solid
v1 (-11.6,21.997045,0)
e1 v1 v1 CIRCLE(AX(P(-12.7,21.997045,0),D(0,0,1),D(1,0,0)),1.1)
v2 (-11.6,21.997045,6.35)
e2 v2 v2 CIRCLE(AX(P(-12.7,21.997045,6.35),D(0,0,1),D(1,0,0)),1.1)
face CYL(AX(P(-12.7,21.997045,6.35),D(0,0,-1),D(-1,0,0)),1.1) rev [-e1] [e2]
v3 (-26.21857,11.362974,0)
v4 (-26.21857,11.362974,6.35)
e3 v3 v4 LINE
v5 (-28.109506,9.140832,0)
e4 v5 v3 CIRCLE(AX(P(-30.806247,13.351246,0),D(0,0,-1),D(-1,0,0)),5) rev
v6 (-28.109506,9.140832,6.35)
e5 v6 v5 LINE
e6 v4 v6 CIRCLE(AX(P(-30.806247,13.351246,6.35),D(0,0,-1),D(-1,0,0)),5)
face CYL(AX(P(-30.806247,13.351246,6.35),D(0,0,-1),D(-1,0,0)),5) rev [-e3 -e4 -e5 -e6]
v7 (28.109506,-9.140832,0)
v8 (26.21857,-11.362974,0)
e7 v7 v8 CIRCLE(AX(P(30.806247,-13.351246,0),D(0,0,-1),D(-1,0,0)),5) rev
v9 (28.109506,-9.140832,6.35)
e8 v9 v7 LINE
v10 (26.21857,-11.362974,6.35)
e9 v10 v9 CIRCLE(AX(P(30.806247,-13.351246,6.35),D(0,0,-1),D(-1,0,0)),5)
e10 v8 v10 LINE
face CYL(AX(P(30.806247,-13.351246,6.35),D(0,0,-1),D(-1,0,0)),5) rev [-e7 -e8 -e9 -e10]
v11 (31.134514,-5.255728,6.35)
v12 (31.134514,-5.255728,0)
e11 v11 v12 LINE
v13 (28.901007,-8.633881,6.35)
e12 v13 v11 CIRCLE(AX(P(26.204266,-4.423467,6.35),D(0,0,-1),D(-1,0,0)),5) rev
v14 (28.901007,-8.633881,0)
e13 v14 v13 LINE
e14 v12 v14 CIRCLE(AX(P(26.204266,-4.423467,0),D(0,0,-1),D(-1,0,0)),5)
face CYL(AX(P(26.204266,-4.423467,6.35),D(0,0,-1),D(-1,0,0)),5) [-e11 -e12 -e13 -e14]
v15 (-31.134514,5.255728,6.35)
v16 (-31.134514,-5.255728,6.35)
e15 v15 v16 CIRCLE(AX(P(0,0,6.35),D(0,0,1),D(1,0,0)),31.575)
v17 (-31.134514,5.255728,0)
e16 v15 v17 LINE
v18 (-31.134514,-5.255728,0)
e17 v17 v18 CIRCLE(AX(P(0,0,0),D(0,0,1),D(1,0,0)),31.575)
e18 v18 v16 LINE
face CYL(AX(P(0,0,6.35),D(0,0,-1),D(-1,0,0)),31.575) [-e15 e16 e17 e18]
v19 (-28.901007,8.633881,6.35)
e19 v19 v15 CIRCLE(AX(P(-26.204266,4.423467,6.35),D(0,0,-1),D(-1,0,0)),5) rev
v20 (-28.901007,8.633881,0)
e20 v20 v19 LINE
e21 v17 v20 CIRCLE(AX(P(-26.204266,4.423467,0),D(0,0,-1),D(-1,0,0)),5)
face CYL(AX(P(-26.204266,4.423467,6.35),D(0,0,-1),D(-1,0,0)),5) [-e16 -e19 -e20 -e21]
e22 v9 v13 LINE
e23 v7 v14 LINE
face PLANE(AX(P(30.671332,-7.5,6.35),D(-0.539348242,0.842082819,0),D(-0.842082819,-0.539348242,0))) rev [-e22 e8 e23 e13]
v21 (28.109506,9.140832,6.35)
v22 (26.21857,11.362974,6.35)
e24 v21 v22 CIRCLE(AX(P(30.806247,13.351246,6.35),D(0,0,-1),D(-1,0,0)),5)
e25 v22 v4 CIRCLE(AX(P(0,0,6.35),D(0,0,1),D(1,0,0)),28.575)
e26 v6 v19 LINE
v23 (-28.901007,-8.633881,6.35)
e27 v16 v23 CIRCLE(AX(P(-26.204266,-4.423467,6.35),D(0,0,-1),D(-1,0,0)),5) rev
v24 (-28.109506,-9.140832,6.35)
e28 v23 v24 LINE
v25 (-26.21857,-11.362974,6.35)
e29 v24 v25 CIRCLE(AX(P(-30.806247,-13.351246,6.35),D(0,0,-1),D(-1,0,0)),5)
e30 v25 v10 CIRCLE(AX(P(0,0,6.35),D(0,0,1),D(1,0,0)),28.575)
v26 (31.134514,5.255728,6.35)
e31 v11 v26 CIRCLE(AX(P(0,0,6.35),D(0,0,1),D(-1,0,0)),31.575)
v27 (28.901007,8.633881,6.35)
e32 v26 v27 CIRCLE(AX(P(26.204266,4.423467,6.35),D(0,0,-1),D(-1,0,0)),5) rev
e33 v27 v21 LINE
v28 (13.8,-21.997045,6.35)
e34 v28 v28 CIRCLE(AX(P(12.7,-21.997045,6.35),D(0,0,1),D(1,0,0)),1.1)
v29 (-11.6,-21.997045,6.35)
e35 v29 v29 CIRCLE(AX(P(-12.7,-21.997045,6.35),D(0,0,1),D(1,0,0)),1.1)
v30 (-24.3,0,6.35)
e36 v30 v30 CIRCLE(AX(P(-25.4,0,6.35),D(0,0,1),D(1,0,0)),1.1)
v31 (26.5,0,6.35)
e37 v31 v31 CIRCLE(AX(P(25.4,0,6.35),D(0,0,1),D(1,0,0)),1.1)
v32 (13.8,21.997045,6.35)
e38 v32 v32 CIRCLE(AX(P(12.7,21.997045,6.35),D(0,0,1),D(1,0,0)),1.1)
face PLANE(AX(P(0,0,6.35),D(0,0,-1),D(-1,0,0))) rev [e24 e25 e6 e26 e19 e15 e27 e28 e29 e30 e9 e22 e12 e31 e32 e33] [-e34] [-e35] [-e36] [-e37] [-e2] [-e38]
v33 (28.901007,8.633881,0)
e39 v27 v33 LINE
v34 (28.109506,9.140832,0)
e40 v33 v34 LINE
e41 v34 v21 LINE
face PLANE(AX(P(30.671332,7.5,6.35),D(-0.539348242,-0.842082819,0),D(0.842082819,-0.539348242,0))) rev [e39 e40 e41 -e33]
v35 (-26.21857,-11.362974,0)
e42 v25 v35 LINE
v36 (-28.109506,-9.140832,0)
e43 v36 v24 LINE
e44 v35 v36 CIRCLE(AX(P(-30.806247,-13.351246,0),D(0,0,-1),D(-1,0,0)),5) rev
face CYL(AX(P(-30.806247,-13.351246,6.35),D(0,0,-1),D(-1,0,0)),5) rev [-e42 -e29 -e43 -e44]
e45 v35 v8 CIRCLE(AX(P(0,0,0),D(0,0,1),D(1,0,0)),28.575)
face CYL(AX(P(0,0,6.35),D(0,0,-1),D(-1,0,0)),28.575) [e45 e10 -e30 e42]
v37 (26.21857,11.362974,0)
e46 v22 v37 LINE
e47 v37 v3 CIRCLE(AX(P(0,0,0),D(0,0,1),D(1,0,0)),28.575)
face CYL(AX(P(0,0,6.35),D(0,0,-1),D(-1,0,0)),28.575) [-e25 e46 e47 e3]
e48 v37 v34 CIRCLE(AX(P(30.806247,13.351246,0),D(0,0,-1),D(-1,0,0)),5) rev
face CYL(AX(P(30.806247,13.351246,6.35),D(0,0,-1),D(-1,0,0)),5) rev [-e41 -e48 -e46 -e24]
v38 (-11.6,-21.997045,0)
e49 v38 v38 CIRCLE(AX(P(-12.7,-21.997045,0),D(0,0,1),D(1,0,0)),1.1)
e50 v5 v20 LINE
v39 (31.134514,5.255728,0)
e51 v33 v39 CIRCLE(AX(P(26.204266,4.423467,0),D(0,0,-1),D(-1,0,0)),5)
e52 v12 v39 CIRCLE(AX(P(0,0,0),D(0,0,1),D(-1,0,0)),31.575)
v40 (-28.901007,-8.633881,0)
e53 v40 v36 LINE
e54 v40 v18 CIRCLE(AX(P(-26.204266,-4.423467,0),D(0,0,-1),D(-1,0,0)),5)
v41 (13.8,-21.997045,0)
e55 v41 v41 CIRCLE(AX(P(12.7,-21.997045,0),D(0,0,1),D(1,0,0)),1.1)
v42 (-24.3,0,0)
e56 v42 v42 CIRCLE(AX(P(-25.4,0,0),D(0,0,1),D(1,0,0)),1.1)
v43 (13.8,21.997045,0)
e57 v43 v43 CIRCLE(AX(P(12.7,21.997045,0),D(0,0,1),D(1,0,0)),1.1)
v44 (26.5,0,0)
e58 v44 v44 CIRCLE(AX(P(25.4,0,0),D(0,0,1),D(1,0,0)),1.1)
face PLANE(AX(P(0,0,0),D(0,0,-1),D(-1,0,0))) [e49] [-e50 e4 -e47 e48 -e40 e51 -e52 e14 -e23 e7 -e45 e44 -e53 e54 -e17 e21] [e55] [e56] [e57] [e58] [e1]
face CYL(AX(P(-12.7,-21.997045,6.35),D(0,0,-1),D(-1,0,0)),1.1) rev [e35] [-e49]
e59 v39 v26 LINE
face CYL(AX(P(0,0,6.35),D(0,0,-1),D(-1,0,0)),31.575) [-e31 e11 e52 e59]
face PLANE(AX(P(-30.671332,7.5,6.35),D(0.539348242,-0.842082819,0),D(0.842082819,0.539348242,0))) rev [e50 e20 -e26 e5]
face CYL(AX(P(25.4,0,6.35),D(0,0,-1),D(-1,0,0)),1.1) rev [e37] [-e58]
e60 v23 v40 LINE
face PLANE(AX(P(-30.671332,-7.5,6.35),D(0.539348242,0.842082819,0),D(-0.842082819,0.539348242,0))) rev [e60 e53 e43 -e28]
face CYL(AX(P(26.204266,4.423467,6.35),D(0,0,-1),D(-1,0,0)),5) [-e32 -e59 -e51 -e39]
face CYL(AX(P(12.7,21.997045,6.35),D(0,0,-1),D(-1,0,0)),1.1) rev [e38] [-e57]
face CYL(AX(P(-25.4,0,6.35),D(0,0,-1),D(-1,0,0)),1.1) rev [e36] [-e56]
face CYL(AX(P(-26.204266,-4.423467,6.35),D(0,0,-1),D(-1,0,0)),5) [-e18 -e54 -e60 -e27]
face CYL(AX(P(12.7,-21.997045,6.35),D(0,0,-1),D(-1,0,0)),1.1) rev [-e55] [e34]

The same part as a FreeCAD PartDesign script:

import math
import FreeCAD as App
import Part
import Sketcher
from FreeCAD import Vector
Q = App.Units.Quantity


def edges_at(feature, points):
    """Names of the edges that pass closest to the given points."""
    edges = feature.Shape.Edges
    near = lambda p: min(range(len(edges)), key=lambda i: edges[i].distToShape(Part.Vertex(*p))[0])
    return sorted({f"Edge{near(p) + 1}" for p in points})

doc = App.newDocument("Part")
body = doc.addObject("PartDesign::Body", "Body")

sketch1 = body.newObject("Sketcher::SketchObject", "Sketch")
sketch1.AttachmentSupport = (doc.getObject("XY_Plane"), [""])
sketch1.MapMode = "FlatFace"
sketch1.addGeometry(Part.LineSegment(Vector(-26.8, 10, 0), Vector(-30.7, 7.5, 0)), False)
sketch1.addGeometry(Part.ArcOfCircle(Part.Circle(Vector(0, 0, 0), Vector(0, 0, 1), 31.6), math.radians(166), math.radians(194)), False)
sketch1.addGeometry(Part.LineSegment(Vector(-30.7, -7.5, 0), Vector(-26.8, -10, 0)), False)
sketch1.addGeometry(Part.ArcOfCircle(Part.Circle(Vector(0, 0, 0), Vector(0, 0, 1), 28.6), math.radians(-160), math.radians(-20)), False)
sketch1.addGeometry(Part.LineSegment(Vector(26.8, -10, 0), Vector(30.7, -7.5, 0)), False)
sketch1.addGeometry(Part.ArcOfCircle(Part.Circle(Vector(0, 0, 0), Vector(0, 0, 1), 31.6), math.radians(-14), math.radians(14)), False)
sketch1.addGeometry(Part.LineSegment(Vector(30.7, 7.5, 0), Vector(26.8, 10, 0)), False)
sketch1.addGeometry(Part.ArcOfCircle(Part.Circle(Vector(0, 0, 0), Vector(0, 0, 1), 28.6), math.radians(20), math.radians(160)), False)
sketch1.addGeometry(Part.Circle(Vector(12.7, -22, 0), Vector(0, 0, 1), 1.1), False)
sketch1.addGeometry(Part.Circle(Vector(-12.7, -22, 0), Vector(0, 0, 1), 1.1), False)
sketch1.addGeometry(Part.Circle(Vector(25.4, 0, 0), Vector(0, 0, 1), 1.1), False)
sketch1.addGeometry(Part.Circle(Vector(12.7, 22, 0), Vector(0, 0, 1), 1.1), False)
sketch1.addGeometry(Part.Circle(Vector(-25.4, 0, 0), Vector(0, 0, 1), 1.1), False)
sketch1.addGeometry(Part.Circle(Vector(-12.7, 22, 0), Vector(0, 0, 1), 1.1), False)
sketch1.addConstraint(Sketcher.Constraint("Coincident", 0, 2, 1, 1))
sketch1.addConstraint(Sketcher.Constraint("Coincident", 1, 2, 2, 1))
sketch1.addConstraint(Sketcher.Constraint("Coincident", 2, 2, 3, 1))
sketch1.addConstraint(Sketcher.Constraint("Coincident", 3, 2, 4, 1))
sketch1.addConstraint(Sketcher.Constraint("Coincident", 4, 2, 5, 1))
sketch1.addConstraint(Sketcher.Constraint("Coincident", 5, 2, 6, 1))
sketch1.addConstraint(Sketcher.Constraint("Coincident", 6, 2, 7, 1))
sketch1.addConstraint(Sketcher.Constraint("Coincident", 7, 2, 0, 1))
sketch1.addConstraint(Sketcher.Constraint("Coincident", 1, 3, -1, 1))
sketch1.addConstraint(Sketcher.Constraint("Coincident", 3, 3, -1, 1))
sketch1.addConstraint(Sketcher.Constraint("Coincident", 5, 3, -1, 1))
sketch1.addConstraint(Sketcher.Constraint("Coincident", 7, 3, -1, 1))
sketch1.addConstraint(Sketcher.Constraint("Equal", 1, 5))
sketch1.addConstraint(Sketcher.Constraint("Equal", 3, 7))
sketch1.addConstraint(Sketcher.Constraint("Equal", 8, 9))
sketch1.addConstraint(Sketcher.Constraint("Equal", 9, 10))
sketch1.addConstraint(Sketcher.Constraint("Equal", 10, 11))
sketch1.addConstraint(Sketcher.Constraint("Equal", 11, 12))
sketch1.addConstraint(Sketcher.Constraint("Equal", 12, 13))
sketch1.addConstraint(Sketcher.Constraint("Symmetric", 9, 3, 11, 3, -1, 1))
sketch1.addConstraint(Sketcher.Constraint("Symmetric", 10, 3, 12, 3, -1, 1))
sketch1.addConstraint(Sketcher.Constraint("Symmetric", 8, 3, 13, 3, -1, 1))
sketch1.addConstraint(Sketcher.Constraint("Symmetric", 8, 3, 9, 3, -2))
sketch1.addConstraint(Sketcher.Constraint("PointOnObject", 10, 3, -1))
sketch1.addConstraint(Sketcher.Constraint("Parallel", 0, 4))
sketch1.addConstraint(Sketcher.Constraint("Parallel", 2, 6))
sketch1.addConstraint(Sketcher.Constraint("Horizontal", 2, 2, 3, 2))
sketch1.addConstraint(Sketcher.Constraint("Horizontal", 1, 2, 4, 2))
sketch1.addConstraint(Sketcher.Constraint("Horizontal", 0, 2, 5, 2))
sketch1.addConstraint(Sketcher.Constraint("Vertical", 0, 2, 1, 2))
sketch1.addConstraint(Sketcher.Constraint("Diameter", 8, Q("2.2 mm")))
sketch1.addConstraint(Sketcher.Constraint("DistanceY", 2, 2, -1, 1, Q("10 mm")))
sketch1.addConstraint(Sketcher.Constraint("Radius", 1, Q("31.575 mm")))
sketch1.addConstraint(Sketcher.Constraint("Radius", 3, Q("28.575 mm")))
sketch1.addConstraint(Sketcher.Constraint("DistanceY", 1, 2, 0, 2, Q("15 mm")))
sketch1.addConstraint(Sketcher.Constraint("DistanceX", -1, 1, 8, 3, Q("12.7 mm")))
sketch1.addConstraint(Sketcher.Constraint("DistanceX", -1, 1, 10, 3, Q("25.4 mm")))
sketch1.addConstraint(Sketcher.Constraint("DistanceY", 8, 3, -1, 1, Q("21.997045 mm")))
pad1 = body.newObject("PartDesign::Pad", "Pad")
pad1.Profile = sketch1
pad1.Length = 6.35
doc.recompute()

fillet = body.newObject("PartDesign::Fillet", "Fillet")
fillet.Base = (pad1, edges_at(pad1, [
    (30.671, -7.5, 3.175),
    (26.768, -10, 3.175),
    (-26.768, -10, 3.175),
    (-30.671, -7.5, 3.175),
    (-30.671, 7.5, 3.175),
    (-26.768, 10, 3.175),
    (26.768, 10, 3.175),
    (30.671, 7.5, 3.175),
]))
fillet.Radius = 5

doc.recompute()
